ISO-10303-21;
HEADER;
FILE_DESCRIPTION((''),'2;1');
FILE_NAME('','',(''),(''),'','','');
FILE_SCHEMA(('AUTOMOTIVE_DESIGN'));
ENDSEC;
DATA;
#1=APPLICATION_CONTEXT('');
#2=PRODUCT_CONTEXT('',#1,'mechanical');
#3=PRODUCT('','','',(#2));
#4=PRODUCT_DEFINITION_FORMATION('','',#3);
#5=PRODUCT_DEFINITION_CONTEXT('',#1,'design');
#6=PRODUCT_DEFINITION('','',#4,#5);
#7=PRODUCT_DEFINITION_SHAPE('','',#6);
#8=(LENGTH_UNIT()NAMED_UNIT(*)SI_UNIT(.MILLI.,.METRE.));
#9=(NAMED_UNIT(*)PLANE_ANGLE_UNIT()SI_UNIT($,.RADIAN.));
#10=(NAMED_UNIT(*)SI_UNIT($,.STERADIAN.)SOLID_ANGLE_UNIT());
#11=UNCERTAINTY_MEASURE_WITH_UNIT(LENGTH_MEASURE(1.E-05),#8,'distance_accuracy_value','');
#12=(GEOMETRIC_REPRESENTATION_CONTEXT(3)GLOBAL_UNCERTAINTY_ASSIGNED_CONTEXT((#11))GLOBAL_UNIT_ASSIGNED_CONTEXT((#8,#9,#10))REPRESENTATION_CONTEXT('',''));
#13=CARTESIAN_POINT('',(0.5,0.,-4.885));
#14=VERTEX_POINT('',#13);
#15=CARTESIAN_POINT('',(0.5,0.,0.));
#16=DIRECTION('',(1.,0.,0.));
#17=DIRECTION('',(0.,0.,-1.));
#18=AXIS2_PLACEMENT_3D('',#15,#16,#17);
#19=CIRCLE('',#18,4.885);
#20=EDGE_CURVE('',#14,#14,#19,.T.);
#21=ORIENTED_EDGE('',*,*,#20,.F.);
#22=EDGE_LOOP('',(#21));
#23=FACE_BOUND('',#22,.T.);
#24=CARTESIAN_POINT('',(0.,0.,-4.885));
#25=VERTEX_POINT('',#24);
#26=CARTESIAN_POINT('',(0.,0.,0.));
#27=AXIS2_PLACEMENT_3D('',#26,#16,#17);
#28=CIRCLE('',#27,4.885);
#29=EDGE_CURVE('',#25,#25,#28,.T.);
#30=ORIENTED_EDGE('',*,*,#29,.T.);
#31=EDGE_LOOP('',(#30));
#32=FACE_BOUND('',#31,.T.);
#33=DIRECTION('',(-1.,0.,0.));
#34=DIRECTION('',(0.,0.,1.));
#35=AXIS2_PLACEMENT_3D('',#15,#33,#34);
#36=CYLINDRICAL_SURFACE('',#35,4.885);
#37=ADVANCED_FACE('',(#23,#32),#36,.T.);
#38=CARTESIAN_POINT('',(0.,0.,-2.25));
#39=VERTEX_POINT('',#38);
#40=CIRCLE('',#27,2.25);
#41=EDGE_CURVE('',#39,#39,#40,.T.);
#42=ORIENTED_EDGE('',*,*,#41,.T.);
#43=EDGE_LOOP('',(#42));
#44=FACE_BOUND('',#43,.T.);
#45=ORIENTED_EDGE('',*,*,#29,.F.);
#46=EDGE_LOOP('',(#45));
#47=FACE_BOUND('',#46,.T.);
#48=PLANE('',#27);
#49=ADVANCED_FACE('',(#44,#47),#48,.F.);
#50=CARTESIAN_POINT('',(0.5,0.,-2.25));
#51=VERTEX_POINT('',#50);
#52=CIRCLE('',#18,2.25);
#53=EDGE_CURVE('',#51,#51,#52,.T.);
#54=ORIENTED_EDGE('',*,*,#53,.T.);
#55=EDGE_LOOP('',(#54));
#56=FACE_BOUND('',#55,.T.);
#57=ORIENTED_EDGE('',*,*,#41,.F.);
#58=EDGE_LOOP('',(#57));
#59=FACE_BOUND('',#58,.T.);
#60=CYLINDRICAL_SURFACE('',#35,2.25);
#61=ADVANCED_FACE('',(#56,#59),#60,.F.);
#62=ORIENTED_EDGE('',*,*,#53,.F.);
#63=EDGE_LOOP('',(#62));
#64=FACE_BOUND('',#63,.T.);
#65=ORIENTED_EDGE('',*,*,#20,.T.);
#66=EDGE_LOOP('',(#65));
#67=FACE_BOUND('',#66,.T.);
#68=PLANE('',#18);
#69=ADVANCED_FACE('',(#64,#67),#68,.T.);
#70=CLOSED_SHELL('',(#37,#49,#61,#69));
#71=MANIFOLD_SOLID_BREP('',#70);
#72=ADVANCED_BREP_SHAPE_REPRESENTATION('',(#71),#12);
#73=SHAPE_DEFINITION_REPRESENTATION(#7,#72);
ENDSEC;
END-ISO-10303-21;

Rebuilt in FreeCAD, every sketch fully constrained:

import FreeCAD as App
import Part
import Sketcher

V = App.Vector
Q = App.Units.Quantity

doc = App.newDocument("Part")
body = doc.addObject("PartDesign::Body", "Body")

sketch1 = body.newObject("Sketcher::SketchObject", "Sketch")
sketch1.AttachmentSupport = (doc.getObject("YZ_Plane"), [""])
sketch1.MapMode = "FlatFace"
sketch1.addGeometry(Part.Circle(V(0, 0, 0), V(0, 0, 1), 4.885), False)
sketch1.addGeometry(Part.Circle(V(0, 0, 0), V(0, 0, 1), 2.25), False)
sketch1.addConstraint(Sketcher.Constraint("Coincident", 0, 3, -1, 1))
sketch1.addConstraint(Sketcher.Constraint("Coincident", 1, 3, -1, 1))
sketch1.addConstraint(Sketcher.Constraint("Diameter", 1, Q("4.5 mm")))
sketch1.addConstraint(Sketcher.Constraint("Diameter", 0, Q("9.77 mm")))
pad1 = body.newObject("PartDesign::Pad", "Pad")
pad1.Profile = sketch1
pad1.Length = 0.5

doc.recompute()
